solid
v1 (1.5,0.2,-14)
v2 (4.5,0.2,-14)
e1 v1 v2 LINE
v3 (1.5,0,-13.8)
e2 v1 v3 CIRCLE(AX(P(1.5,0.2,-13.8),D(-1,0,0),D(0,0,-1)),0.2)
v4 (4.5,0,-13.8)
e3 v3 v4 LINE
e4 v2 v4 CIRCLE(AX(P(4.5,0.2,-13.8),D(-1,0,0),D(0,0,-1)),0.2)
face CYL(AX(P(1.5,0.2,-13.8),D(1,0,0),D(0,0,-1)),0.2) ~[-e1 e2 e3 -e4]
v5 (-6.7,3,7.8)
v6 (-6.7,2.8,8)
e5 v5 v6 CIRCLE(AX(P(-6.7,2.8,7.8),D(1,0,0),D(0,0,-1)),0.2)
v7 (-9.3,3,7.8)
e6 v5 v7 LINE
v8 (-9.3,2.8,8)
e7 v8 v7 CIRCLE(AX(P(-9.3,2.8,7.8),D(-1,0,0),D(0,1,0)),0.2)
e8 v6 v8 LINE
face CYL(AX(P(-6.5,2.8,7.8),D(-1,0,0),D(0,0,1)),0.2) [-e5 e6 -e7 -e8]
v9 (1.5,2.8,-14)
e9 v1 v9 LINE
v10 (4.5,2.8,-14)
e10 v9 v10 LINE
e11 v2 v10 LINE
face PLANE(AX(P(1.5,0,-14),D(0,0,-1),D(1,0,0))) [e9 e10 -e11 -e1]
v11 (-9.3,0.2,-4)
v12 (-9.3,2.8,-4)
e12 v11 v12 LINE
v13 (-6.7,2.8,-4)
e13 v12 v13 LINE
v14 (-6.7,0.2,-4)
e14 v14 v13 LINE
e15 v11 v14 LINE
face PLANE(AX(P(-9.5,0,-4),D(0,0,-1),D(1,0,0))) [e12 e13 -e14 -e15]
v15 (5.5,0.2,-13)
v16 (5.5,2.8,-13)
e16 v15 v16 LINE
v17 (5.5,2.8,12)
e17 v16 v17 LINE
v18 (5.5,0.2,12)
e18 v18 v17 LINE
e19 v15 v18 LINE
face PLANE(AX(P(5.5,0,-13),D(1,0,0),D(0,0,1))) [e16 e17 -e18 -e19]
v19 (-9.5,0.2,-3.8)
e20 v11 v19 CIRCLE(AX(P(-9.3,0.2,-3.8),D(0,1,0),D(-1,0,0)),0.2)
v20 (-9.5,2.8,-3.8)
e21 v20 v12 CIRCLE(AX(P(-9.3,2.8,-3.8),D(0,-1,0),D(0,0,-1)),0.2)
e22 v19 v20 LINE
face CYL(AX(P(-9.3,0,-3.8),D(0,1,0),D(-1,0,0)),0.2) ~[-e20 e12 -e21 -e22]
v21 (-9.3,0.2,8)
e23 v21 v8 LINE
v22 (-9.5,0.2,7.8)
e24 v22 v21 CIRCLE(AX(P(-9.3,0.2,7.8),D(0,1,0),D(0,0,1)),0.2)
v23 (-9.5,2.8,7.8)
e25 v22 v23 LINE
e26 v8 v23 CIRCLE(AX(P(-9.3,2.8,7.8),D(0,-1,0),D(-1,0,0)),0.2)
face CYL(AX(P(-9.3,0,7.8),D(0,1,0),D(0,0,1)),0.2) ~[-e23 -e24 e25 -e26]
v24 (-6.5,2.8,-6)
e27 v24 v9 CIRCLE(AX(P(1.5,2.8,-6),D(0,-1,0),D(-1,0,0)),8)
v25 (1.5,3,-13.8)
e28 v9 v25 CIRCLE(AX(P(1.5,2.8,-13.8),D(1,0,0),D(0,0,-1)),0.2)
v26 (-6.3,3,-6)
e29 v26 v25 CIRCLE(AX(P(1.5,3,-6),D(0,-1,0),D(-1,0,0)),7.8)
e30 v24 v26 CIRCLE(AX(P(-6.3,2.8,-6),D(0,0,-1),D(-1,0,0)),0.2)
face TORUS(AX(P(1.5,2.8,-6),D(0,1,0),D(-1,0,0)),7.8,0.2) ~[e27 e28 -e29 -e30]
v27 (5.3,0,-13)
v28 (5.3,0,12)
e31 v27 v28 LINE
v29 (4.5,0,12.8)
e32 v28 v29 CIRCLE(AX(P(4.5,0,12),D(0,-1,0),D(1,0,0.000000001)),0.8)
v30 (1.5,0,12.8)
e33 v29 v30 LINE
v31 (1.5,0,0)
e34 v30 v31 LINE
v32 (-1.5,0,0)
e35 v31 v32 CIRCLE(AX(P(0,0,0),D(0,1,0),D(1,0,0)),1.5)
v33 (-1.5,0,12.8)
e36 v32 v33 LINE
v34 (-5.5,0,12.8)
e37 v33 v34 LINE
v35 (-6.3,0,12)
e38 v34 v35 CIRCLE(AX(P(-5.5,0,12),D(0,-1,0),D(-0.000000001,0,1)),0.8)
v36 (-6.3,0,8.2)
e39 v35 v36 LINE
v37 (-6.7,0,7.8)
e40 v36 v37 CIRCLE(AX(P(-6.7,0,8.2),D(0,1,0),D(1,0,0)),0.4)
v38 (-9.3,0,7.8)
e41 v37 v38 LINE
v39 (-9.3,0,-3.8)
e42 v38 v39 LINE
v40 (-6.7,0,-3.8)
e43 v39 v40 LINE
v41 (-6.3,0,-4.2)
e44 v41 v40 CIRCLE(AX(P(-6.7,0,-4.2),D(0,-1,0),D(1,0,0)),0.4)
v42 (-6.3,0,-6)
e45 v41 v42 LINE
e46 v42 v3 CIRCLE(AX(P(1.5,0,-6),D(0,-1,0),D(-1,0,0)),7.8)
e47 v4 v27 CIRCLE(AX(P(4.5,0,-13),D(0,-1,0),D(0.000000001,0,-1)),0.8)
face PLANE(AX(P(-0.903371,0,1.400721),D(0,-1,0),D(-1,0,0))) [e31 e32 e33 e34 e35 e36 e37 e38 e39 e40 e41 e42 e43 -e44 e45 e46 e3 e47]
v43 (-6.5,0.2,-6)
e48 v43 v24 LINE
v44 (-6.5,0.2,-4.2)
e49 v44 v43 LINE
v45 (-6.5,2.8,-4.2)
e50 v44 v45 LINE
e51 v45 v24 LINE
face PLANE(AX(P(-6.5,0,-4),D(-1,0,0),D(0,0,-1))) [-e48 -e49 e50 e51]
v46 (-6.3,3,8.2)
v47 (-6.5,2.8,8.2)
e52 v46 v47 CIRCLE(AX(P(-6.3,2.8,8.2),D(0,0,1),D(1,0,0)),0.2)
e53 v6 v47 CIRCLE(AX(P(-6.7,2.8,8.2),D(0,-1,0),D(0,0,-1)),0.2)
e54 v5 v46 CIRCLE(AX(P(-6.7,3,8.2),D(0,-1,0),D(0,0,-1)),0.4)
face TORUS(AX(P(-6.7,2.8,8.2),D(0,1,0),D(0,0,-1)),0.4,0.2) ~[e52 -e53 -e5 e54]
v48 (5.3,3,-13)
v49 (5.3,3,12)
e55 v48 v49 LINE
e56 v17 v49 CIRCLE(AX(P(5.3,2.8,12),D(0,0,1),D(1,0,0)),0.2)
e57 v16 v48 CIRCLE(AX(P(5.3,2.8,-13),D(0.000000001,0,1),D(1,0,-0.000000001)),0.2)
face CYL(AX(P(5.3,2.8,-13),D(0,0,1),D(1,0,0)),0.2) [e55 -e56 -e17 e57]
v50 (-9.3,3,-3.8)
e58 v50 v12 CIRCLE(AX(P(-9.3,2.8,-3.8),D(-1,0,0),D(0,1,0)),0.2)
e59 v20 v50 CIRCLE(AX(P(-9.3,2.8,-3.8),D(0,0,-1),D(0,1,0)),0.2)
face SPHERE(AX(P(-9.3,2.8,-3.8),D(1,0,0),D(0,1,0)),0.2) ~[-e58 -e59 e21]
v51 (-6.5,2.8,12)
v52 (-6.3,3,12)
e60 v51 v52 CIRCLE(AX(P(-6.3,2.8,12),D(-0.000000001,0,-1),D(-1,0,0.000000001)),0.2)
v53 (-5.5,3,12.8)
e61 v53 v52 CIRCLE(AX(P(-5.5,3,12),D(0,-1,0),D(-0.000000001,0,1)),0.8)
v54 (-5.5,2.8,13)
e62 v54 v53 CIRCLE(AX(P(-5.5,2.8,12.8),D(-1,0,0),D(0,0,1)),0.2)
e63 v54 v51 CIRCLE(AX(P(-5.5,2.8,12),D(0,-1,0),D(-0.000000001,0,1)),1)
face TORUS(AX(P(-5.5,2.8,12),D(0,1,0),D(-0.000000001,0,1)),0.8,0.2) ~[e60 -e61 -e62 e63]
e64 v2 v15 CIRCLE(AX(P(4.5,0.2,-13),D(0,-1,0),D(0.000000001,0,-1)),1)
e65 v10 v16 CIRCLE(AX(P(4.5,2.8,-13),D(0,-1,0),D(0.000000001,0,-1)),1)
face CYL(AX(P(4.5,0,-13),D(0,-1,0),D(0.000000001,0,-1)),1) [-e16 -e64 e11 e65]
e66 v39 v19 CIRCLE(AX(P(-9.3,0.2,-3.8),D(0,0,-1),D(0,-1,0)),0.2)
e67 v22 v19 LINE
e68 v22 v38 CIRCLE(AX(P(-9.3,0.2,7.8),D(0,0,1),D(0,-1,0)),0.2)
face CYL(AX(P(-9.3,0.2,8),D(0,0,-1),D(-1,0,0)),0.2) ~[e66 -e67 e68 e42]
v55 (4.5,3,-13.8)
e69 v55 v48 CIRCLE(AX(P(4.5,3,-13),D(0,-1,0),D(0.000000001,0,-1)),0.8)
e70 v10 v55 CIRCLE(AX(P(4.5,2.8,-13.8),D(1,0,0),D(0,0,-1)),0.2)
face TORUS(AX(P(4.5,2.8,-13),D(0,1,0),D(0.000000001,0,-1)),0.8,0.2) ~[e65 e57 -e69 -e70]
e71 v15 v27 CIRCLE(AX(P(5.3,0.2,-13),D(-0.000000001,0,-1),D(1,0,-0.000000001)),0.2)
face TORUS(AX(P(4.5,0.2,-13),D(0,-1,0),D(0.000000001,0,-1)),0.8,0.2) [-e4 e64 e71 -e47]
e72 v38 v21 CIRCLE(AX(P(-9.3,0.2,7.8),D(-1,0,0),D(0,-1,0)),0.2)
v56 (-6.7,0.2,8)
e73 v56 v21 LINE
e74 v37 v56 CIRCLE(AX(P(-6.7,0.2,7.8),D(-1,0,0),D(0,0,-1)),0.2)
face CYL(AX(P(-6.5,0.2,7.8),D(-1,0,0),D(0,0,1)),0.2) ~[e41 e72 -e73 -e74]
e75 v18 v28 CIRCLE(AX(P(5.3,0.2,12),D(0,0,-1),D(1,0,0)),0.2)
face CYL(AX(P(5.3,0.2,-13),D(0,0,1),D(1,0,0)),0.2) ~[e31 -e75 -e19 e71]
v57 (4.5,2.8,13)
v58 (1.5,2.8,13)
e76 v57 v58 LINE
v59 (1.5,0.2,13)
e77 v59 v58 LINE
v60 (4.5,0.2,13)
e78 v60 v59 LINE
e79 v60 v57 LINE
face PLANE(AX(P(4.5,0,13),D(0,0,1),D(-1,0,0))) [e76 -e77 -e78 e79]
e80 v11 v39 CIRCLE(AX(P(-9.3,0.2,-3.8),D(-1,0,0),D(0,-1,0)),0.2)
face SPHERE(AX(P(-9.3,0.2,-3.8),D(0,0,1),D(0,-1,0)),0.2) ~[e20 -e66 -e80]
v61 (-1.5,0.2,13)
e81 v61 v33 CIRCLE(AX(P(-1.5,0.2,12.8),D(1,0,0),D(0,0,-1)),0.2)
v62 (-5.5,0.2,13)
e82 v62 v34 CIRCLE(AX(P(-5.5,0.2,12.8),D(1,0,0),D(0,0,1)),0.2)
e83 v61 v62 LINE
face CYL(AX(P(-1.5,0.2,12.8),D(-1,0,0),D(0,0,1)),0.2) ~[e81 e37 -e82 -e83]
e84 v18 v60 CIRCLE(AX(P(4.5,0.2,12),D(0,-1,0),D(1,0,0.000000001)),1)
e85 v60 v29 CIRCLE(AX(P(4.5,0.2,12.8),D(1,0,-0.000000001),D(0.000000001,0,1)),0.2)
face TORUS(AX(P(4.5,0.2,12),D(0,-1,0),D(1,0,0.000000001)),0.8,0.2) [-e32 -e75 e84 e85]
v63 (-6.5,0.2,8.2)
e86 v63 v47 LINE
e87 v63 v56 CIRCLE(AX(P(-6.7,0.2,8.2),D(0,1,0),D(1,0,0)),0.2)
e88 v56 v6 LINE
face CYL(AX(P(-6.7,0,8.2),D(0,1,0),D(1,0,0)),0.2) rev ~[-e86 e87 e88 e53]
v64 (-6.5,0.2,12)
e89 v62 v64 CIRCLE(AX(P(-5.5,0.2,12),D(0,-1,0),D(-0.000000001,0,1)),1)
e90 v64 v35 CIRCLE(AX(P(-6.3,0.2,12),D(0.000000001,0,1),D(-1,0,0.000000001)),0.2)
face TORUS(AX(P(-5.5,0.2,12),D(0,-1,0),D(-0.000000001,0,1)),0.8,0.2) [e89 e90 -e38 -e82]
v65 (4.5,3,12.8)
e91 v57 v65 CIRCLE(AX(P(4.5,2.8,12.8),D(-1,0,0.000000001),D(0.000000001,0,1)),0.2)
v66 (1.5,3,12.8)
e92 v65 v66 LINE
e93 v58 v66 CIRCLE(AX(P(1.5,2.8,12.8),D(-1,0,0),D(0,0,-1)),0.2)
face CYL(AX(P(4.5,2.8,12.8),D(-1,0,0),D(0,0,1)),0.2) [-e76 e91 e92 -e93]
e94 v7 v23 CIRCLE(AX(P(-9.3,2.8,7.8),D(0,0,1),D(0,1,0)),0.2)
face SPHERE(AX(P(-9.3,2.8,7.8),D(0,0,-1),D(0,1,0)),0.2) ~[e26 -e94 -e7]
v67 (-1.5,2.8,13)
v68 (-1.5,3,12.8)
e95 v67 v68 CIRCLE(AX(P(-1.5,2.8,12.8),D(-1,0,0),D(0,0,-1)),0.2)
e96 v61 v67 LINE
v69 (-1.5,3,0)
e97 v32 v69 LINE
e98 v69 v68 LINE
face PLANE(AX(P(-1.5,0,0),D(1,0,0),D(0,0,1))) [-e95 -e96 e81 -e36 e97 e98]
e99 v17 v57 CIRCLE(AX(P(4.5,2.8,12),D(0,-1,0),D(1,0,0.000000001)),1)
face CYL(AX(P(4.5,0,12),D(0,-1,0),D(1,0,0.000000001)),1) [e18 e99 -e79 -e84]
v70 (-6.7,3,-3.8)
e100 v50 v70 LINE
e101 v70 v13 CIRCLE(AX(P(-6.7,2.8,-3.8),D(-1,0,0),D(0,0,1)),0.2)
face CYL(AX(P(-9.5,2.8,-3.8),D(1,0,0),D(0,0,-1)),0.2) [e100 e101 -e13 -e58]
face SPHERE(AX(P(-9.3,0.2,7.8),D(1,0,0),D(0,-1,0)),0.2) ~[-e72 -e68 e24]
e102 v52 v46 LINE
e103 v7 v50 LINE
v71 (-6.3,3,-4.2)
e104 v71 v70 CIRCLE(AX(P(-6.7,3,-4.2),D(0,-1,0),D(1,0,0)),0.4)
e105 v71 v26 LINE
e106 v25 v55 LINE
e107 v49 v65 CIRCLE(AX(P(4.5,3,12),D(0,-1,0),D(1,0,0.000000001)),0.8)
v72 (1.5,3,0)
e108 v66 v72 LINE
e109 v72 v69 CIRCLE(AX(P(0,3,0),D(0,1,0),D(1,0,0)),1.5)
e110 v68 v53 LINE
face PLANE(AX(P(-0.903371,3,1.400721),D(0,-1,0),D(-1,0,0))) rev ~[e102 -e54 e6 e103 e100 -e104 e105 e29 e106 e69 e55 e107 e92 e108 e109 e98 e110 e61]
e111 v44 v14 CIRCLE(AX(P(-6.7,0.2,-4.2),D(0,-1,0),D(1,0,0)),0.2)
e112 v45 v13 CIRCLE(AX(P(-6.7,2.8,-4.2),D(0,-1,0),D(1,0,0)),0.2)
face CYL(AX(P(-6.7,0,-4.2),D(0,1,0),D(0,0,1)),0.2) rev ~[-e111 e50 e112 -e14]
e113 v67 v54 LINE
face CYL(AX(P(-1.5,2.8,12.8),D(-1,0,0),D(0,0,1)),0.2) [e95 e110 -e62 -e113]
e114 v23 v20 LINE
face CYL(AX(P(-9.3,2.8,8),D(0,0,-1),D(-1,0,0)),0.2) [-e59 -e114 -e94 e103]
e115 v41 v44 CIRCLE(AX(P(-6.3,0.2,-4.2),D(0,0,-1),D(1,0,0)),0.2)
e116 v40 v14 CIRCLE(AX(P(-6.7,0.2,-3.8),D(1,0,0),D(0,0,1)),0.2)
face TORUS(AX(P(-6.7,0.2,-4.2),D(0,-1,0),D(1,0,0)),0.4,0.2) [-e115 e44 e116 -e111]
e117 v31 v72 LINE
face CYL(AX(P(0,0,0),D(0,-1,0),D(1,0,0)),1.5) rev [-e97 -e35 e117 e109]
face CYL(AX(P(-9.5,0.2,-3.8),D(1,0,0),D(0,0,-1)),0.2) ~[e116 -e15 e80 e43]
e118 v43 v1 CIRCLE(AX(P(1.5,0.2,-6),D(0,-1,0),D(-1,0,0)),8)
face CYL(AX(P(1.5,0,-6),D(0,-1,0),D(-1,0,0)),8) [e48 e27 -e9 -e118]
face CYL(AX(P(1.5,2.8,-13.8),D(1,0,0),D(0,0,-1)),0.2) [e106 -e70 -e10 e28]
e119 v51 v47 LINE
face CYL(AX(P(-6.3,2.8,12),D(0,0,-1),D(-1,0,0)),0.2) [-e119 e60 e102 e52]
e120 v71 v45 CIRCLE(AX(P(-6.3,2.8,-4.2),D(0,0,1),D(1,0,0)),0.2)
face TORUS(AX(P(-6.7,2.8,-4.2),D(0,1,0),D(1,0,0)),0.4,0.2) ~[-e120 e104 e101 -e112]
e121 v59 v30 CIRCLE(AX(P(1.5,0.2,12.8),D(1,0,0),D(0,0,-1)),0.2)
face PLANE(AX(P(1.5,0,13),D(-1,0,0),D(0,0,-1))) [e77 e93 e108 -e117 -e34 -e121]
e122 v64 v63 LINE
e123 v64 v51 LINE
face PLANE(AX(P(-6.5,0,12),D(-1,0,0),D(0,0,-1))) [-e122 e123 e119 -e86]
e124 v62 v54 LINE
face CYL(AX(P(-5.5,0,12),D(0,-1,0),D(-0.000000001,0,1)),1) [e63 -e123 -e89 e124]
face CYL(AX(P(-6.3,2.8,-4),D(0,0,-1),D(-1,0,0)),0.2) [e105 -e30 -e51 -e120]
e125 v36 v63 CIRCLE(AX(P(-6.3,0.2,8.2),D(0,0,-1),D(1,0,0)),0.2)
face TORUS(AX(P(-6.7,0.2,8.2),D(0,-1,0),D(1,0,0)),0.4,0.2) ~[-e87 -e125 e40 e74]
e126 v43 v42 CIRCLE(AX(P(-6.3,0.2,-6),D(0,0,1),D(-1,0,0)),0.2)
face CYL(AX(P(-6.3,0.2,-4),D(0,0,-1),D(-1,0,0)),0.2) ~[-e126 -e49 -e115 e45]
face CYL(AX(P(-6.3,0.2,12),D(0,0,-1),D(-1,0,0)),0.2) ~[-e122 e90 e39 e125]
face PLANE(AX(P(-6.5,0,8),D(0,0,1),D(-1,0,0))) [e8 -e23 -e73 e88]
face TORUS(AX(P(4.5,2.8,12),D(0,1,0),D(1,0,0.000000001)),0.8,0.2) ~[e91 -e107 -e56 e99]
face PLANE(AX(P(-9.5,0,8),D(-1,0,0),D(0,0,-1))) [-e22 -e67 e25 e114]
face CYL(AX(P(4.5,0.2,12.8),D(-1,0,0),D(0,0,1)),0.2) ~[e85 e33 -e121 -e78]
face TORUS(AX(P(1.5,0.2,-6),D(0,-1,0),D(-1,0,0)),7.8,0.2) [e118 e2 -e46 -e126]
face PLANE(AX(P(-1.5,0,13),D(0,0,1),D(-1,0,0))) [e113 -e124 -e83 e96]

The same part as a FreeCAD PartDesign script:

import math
import FreeCAD as App
import Part
import Sketcher

V = App.Vector
Q = App.Units.Quantity


def edges_at(feature, points):
    """Names of the edges that pass closest to the given points."""
    edges = feature.Shape.Edges
    near = lambda p: min(range(len(edges)), key=lambda i: edges[i].distToShape(Part.Vertex(*p))[0])
    return sorted({f"Edge{near(p) + 1}" for p in points})

doc = App.newDocument("Part")
body = doc.addObject("PartDesign::Body", "Body")

# Sketch on XZ plane
sketch1 = body.newObject("Sketcher::SketchObject", "Sketch")
sketch1.AttachmentSupport = (doc.getObject("XZ_Plane"), [""])
sketch1.MapMode = "FlatFace"
sketch1.addGeometry([
    Part.LineSegment(V(-1.5, 13, 0), V(-1.5, 0, 0)),  # 0
    Part.ArcOfCircle(Part.Circle(V(0, 0, 0), V(0, 0, 1), 1.5), math.radians(180), math.radians(360)),  # 1
    Part.LineSegment(V(1.5, 0, 0), V(1.5, 13, 0)),  # 2
    Part.LineSegment(V(1.5, 13, 0), V(4.5, 13, 0)),  # 3
    Part.ArcOfCircle(Part.Circle(V(4.5, 12, 0), V(0, 0, 1), 1), math.radians(0), math.radians(90)),  # 4
    Part.LineSegment(V(5.5, 12, 0), V(5.5, -13, 0)),  # 5
    Part.ArcOfCircle(Part.Circle(V(4.5, -13, 0), V(0, 0, 1), 1), math.radians(-90), math.radians(0)),  # 6
    Part.LineSegment(V(4.5, -14, 0), V(1.5, -14, 0)),  # 7
    Part.ArcOfCircle(Part.Circle(V(1.5, -6, 0), V(0, 0, 1), 8), math.radians(-180), math.radians(-90)),  # 8
    Part.LineSegment(V(-6.5, -6, 0), V(-6.5, -4, 0)),  # 9
    Part.LineSegment(V(-6.5, -4, 0), V(-9.5, -4, 0)),  # 10
    Part.LineSegment(V(-9.5, -4, 0), V(-9.5, 8, 0)),  # 11
    Part.LineSegment(V(-9.5, 8, 0), V(-6.5, 8, 0)),  # 12
    Part.LineSegment(V(-6.5, 8, 0), V(-6.5, 12, 0)),  # 13
    Part.ArcOfCircle(Part.Circle(V(-5.5, 12, 0), V(0, 0, 1), 1), math.radians(90), math.radians(180)),  # 14
    Part.LineSegment(V(-5.5, 13, 0), V(-1.5, 13, 0)),  # 15
], False)
sketch1.addConstraint([
    Sketcher.Constraint("Tangent", 0, 2, 1, 1),
    Sketcher.Constraint("Tangent", 1, 2, 2, 1),
    Sketcher.Constraint("Coincident", 2, 2, 3, 1),
    Sketcher.Constraint("Tangent", 3, 2, 4, 2),
    Sketcher.Constraint("Tangent", 4, 1, 5, 1),
    Sketcher.Constraint("Tangent", 5, 2, 6, 2),
    Sketcher.Constraint("Tangent", 6, 1, 7, 1),
    Sketcher.Constraint("Tangent", 7, 2, 8, 2),
    Sketcher.Constraint("Tangent", 8, 1, 9, 1),
    Sketcher.Constraint("Coincident", 9, 2, 10, 1),
    Sketcher.Constraint("Coincident", 10, 2, 11, 1),
    Sketcher.Constraint("Coincident", 11, 2, 12, 1),
    Sketcher.Constraint("Coincident", 12, 2, 13, 1),
    Sketcher.Constraint("Tangent", 13, 2, 14, 2),
    Sketcher.Constraint("Tangent", 14, 1, 15, 1),
    Sketcher.Constraint("Coincident", 15, 2, 0, 1),
    Sketcher.Constraint("Vertical", 0),
    Sketcher.Constraint("Vertical", 2),
    Sketcher.Constraint("Horizontal", 3),
    Sketcher.Constraint("Vertical", 5),
    Sketcher.Constraint("Horizontal", 7),
    Sketcher.Constraint("Vertical", 9),
    Sketcher.Constraint("Horizontal", 10),
    Sketcher.Constraint("Vertical", 11),
    Sketcher.Constraint("Horizontal", 12),
    Sketcher.Constraint("Vertical", 13),
    Sketcher.Constraint("Horizontal", 15),
    Sketcher.Constraint("Coincident", 1, 3, -1, 1),
    Sketcher.Constraint("Equal", 4, 6),
    Sketcher.Constraint("Equal", 6, 14),
    Sketcher.Constraint("Symmetric", 5, 2, 14, 1, -1, 1),
    Sketcher.Constraint("Horizontal", 4, 3, 14, 3),
    Sketcher.Constraint("Vertical", 8, 3, 1, 2),
    Sketcher.Constraint("Vertical", 9, 2, 12, 2),
    Sketcher.Constraint("Equal", 7, 10),
    Sketcher.Constraint("Equal", 15, 13),
    Sketcher.Constraint("Radius", 4, Q("1 mm")),
    Sketcher.Constraint("Radius", 8, Q("8 mm")),
    Sketcher.Constraint("Radius", 1, Q("1.5 mm")),
    Sketcher.Constraint("DistanceY", 0, 2, 0, 1, Q("13 mm")),
    Sketcher.Constraint("DistanceY", 9, 1, 9, 2, Q("2 mm")),
])
pad1 = body.newObject("PartDesign::Pad", "Pad")
pad1.Profile = sketch1
pad1.Length = 3
pad1.Reversed = True
doc.recompute()

fillet = body.newObject("PartDesign::Fillet", "Fillet")
fillet.Base = (pad1, edges_at(pad1, [
    (-8, 3, -4),
    (-9.5, 3, 2),
    (3, 0, -14),
    (5.207, 0, -13.707),
    (5.5, 0, -0.5),
    (5.207, 0, 12.707),
    (3, 0, 13),
    (-8, 3, 8),
    (-3.5, 0, 13),
    (-6.207, 0, 12.707),
    (-6.5, 0, 10),
    (-8, 0, 8),
    (-9.5, 0, 2),
    (-6.5, 3, 10),
    (-8, 0, -4),
    (-6.5, 0, -5),
    (-4.157, 0, -11.657),
    (-6.207, 3, 12.707),
    (-3.5, 3, 13),
    (-6.5, 1.5, 8),
    (-9.5, 1.5, 8),
    (-9.5, 1.5, -4),
    (-6.5, 1.5, -4),
    (3, 3, 13),
    (-4.157, 3, -11.657),
    (5.207, 3, 12.707),
    (5.5, 3, -0.5),
    (5.207, 3, -13.707),
    (3, 3, -14),
    (-6.5, 3, -5),
]))
fillet.Radius = 0.2

doc.recompute()
